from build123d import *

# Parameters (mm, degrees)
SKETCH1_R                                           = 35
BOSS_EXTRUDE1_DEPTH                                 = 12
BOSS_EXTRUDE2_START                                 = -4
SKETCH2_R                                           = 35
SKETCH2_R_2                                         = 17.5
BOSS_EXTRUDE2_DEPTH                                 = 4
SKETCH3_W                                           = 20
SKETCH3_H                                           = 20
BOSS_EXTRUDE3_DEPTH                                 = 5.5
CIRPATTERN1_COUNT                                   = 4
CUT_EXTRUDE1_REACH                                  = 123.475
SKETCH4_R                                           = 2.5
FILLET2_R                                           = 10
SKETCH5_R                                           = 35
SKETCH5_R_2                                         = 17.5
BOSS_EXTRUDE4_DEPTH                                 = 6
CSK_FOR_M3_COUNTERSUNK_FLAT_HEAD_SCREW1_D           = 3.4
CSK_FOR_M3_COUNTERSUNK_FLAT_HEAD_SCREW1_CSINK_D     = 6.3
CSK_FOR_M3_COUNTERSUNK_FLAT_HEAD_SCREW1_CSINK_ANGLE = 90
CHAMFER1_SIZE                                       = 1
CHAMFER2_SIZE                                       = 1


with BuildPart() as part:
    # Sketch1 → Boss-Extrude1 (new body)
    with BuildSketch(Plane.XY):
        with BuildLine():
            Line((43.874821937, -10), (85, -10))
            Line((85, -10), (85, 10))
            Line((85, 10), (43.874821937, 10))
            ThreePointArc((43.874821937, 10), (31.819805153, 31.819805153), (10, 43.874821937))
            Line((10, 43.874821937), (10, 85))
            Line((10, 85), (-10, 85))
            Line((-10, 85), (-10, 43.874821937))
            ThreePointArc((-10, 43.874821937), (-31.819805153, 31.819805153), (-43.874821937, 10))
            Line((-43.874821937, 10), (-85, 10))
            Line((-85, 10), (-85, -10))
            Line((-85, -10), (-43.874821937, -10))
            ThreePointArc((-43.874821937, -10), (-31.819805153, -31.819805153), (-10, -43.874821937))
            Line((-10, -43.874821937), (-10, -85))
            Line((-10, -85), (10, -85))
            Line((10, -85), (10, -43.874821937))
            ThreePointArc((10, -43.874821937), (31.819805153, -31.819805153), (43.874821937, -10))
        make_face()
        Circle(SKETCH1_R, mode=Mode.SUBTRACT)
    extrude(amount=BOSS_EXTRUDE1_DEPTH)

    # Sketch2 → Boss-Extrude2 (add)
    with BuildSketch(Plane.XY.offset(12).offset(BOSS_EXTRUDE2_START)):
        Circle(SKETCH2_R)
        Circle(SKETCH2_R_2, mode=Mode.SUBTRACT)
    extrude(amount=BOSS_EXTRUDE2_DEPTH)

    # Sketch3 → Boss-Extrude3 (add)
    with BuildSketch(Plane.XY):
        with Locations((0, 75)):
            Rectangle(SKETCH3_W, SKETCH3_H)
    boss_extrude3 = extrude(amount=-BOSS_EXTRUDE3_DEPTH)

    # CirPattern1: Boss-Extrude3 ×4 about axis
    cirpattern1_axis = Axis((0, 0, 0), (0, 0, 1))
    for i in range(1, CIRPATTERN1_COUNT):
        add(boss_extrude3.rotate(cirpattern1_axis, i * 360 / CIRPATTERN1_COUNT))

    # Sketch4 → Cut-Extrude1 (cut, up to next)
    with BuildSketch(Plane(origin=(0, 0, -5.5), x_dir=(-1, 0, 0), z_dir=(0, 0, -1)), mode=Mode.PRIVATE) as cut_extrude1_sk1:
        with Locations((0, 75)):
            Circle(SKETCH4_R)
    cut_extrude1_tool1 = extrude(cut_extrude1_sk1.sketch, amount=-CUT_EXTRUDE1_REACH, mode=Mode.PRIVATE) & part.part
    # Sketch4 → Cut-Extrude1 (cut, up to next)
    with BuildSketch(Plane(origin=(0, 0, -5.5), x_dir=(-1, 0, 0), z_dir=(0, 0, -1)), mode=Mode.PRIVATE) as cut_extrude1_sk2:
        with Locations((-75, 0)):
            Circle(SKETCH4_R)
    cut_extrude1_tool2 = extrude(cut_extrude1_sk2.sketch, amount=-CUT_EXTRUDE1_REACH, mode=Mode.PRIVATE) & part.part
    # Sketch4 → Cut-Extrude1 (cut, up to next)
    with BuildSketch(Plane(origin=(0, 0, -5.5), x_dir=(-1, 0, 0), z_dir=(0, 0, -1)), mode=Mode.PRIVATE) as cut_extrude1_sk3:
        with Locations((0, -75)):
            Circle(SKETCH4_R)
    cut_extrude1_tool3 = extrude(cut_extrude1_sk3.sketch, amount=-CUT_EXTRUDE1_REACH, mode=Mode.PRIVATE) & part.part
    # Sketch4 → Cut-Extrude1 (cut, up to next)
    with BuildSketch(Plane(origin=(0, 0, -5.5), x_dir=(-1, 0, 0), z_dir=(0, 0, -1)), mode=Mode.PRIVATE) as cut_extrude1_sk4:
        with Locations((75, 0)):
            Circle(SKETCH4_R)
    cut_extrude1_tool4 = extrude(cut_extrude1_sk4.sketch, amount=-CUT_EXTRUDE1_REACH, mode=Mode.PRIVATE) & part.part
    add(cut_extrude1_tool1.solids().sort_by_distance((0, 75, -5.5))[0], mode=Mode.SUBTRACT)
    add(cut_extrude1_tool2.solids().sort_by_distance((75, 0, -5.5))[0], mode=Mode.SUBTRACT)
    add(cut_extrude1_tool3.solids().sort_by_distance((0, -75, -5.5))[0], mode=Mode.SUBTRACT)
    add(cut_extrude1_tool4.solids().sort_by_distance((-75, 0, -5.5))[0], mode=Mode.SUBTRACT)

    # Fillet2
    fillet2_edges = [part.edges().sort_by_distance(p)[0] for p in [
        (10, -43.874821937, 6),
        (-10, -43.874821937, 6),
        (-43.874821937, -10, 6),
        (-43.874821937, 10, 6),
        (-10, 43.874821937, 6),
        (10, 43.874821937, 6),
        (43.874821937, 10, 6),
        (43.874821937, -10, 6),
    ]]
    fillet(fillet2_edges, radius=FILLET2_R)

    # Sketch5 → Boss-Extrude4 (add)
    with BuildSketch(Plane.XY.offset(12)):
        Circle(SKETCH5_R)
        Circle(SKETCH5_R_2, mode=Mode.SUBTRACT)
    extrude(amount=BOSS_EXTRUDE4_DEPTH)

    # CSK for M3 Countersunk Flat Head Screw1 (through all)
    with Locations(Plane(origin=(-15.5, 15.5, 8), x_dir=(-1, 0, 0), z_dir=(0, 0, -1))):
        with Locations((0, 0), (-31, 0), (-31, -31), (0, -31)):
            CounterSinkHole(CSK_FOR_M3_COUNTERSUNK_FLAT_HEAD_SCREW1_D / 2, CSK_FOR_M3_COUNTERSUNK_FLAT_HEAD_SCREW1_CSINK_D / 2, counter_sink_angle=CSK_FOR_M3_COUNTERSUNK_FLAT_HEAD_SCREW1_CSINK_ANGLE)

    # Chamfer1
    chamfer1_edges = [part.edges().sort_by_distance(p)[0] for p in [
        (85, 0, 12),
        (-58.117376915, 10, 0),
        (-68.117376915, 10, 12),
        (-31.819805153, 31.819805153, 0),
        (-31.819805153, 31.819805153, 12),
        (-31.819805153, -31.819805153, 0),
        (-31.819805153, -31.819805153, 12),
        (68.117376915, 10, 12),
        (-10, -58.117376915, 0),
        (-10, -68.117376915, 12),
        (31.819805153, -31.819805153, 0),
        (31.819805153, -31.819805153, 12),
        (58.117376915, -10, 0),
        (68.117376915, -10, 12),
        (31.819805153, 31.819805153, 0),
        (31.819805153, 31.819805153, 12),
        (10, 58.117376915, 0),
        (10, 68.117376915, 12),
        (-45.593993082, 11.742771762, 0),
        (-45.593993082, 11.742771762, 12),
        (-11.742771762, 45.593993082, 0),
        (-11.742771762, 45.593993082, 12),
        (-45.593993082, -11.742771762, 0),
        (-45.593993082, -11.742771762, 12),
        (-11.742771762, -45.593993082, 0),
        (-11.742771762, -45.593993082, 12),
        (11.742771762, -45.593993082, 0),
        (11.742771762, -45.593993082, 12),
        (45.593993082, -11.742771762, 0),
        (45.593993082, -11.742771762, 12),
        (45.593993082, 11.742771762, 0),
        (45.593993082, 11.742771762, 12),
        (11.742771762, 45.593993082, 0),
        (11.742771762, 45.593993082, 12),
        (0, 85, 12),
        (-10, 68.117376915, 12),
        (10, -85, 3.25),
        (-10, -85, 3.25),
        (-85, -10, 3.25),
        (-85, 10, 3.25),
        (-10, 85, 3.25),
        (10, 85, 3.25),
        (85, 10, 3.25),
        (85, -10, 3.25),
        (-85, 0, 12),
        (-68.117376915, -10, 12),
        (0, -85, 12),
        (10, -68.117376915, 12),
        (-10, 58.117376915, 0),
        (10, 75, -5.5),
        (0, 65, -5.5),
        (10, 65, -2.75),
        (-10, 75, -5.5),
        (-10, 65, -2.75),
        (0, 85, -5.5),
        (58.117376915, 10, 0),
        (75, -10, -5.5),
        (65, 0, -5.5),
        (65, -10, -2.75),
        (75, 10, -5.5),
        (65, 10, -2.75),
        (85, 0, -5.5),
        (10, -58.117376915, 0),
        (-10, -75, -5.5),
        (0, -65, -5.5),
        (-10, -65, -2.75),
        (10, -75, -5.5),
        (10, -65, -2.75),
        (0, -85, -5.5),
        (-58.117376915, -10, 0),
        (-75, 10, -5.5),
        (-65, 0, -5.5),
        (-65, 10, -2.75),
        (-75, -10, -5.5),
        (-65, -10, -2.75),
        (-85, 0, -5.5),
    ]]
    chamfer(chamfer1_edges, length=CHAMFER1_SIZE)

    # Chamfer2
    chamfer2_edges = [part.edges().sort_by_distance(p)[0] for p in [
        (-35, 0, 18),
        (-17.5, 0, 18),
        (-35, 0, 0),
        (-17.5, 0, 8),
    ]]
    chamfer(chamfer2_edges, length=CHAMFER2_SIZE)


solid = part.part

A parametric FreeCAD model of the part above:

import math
import FreeCAD as App
import Part
import Sketcher
from FreeCAD import Vector


def edges_at(feature, points):
    """Names of the edges that pass closest to the given points."""
    edges = feature.Shape.Edges
    near = lambda p: min(range(len(edges)), key=lambda i: edges[i].distToShape(Part.Vertex(*p))[0])
    return sorted({f"Edge{near(p) + 1}" for p in points})


def add_polygon(sketch, points):
    """Adds a closed chain of lines whose ends are joined by coincident constraints."""
    first, n = sketch.GeometryCount, len(points)
    for a, b in zip(points, points[1:] + points[:1]):
        sketch.addGeometry(Part.LineSegment(App.Vector(*a, 0), App.Vector(*b, 0)), False)
    for i in range(n):
        sketch.addConstraint(Sketcher.Constraint("Coincident", first + i, 2, first + (i + 1) % n, 1))

doc = App.newDocument("Part")
body = doc.addObject("PartDesign::Body", "Body")

# Sketch on XY plane
sketch1 = body.newObject("Sketcher::SketchObject", "Sketch")
sketch1.AttachmentSupport = (doc.getObject("XY_Plane"), [""])
sketch1.MapMode = "FlatFace"
sketch1.addGeometry(Part.LineSegment(Vector(44, -10, 0), Vector(85, -10, 0)), False)
sketch1.addGeometry(Part.LineSegment(Vector(85, -10, 0), Vector(85, 10, 0)), False)
sketch1.addGeometry(Part.LineSegment(Vector(85, 10, 0), Vector(44, 10, 0)), False)
sketch1.addGeometry(Part.ArcOfCircle(Part.Circle(Vector(0, 0, 0), Vector(0, 0, 1), 45), math.radians(13), math.radians(77)), False)
sketch1.addGeometry(Part.LineSegment(Vector(10, 44, 0), Vector(10, 85, 0)), False)
sketch1.addGeometry(Part.LineSegment(Vector(10, 85, 0), Vector(-10, 85, 0)), False)
sketch1.addGeometry(Part.LineSegment(Vector(-10, 85, 0), Vector(-10, 44, 0)), False)
sketch1.addGeometry(Part.ArcOfCircle(Part.Circle(Vector(0, 0, 0), Vector(0, 0, 1), 45), math.radians(103), math.radians(167)), False)
sketch1.addGeometry(Part.LineSegment(Vector(-44, 10, 0), Vector(-85, 10, 0)), False)
sketch1.addGeometry(Part.LineSegment(Vector(-85, 10, 0), Vector(-85, -10, 0)), False)
sketch1.addGeometry(Part.LineSegment(Vector(-85, -10, 0), Vector(-44, -10, 0)), False)
sketch1.addGeometry(Part.ArcOfCircle(Part.Circle(Vector(0, 0, 0), Vector(0, 0, 1), 45), math.radians(-167), math.radians(-103)), False)
sketch1.addGeometry(Part.LineSegment(Vector(-10, -44, 0), Vector(-10, -85, 0)), False)
sketch1.addGeometry(Part.LineSegment(Vector(-10, -85, 0), Vector(10, -85, 0)), False)
sketch1.addGeometry(Part.LineSegment(Vector(10, -85, 0), Vector(10, -44, 0)), False)
sketch1.addGeometry(Part.ArcOfCircle(Part.Circle(Vector(0, 0, 0), Vector(0, 0, 1), 45), math.radians(-77), math.radians(-13)), False)
sketch1.addGeometry(Part.Circle(Vector(0, 0, 0), Vector(0, 0, 1), 35), False)
sketch1.addConstraint(Sketcher.Constraint("Coincident", 0, 2, 1, 1))
sketch1.addConstraint(Sketcher.Constraint("Coincident", 1, 2, 2, 1))
sketch1.addConstraint(Sketcher.Constraint("Coincident", 2, 2, 3, 1))
sketch1.addConstraint(Sketcher.Constraint("Coincident", 3, 2, 4, 1))
sketch1.addConstraint(Sketcher.Constraint("Coincident", 4, 2, 5, 1))
sketch1.addConstraint(Sketcher.Constraint("Coincident", 5, 2, 6, 1))
sketch1.addConstraint(Sketcher.Constraint("Coincident", 6, 2, 7, 1))
sketch1.addConstraint(Sketcher.Constraint("Coincident", 7, 2, 8, 1))
sketch1.addConstraint(Sketcher.Constraint("Coincident", 8, 2, 9, 1))
sketch1.addConstraint(Sketcher.Constraint("Coincident", 9, 2, 10, 1))
sketch1.addConstraint(Sketcher.Constraint("Coincident", 10, 2, 11, 1))
sketch1.addConstraint(Sketcher.Constraint("Coincident", 11, 2, 12, 1))
sketch1.addConstraint(Sketcher.Constraint("Coincident", 12, 2, 13, 1))
sketch1.addConstraint(Sketcher.Constraint("Coincident", 13, 2, 14, 1))
sketch1.addConstraint(Sketcher.Constraint("Coincident", 14, 2, 15, 1))
sketch1.addConstraint(Sketcher.Constraint("Coincident", 15, 2, 0, 1))
sketch1.addConstraint(Sketcher.Constraint("Horizontal", 0))
sketch1.addConstraint(Sketcher.Constraint("Vertical", 1))
sketch1.addConstraint(Sketcher.Constraint("Horizontal", 2))
sketch1.addConstraint(Sketcher.Constraint("Vertical", 4))
sketch1.addConstraint(Sketcher.Constraint("Horizontal", 5))
sketch1.addConstraint(Sketcher.Constraint("Vertical", 6))
sketch1.addConstraint(Sketcher.Constraint("Horizontal", 8))
sketch1.addConstraint(Sketcher.Constraint("Vertical", 9))
sketch1.addConstraint(Sketcher.Constraint("Horizontal", 10))
sketch1.addConstraint(Sketcher.Constraint("Vertical", 12))
sketch1.addConstraint(Sketcher.Constraint("Horizontal", 13))
sketch1.addConstraint(Sketcher.Constraint("Vertical", 14))
sketch1.addConstraint(Sketcher.Constraint("Coincident", 3, 3, -1, 1))
sketch1.addConstraint(Sketcher.Constraint("Coincident", 7, 3, -1, 1))
sketch1.addConstraint(Sketcher.Constraint("Coincident", 11, 3, -1, 1))
sketch1.addConstraint(Sketcher.Constraint("Coincident", 15, 3, -1, 1))
sketch1.addConstraint(Sketcher.Constraint("Coincident", 16, 3, -1, 1))
sketch1.addConstraint(Sketcher.Constraint("Equal", 3, 7))
sketch1.addConstraint(Sketcher.Constraint("Equal", 7, 11))
sketch1.addConstraint(Sketcher.Constraint("Equal", 11, 15))
sketch1.addConstraint(Sketcher.Constraint("Symmetric", 0, 2, 8, 2, -1, 1))
sketch1.addConstraint(Sketcher.Constraint("Symmetric", 4, 2, 12, 2, -1, 1))
sketch1.addConstraint(Sketcher.Constraint("Horizontal", 3, 2, 6, 2))
sketch1.addConstraint(Sketcher.Constraint("Horizontal", 2, 2, 7, 2))
sketch1.addConstraint(Sketcher.Constraint("Horizontal", 0, 2, 9, 2))
sketch1.addConstraint(Sketcher.Constraint("Horizontal", 11, 2, 14, 2))
sketch1.addConstraint(Sketcher.Constraint("Equal", 13, 1))
sketch1.addConstraint(Sketcher.Constraint("Equal", 10, 4))
sketch1.addConstraint(Sketcher.Constraint("Diameter", 16, 70.0))
sketch1.addConstraint(Sketcher.Constraint("Radius", 3, 45.0))
sketch1.addConstraint(Sketcher.Constraint("DistanceX", 5, 2, 5, 1, 20.0))
sketch1.addConstraint(Sketcher.Constraint("DistanceX", -1, 1, 0, 2, 85.0))
pad1 = body.newObject("PartDesign::Pad", "Pad")
pad1.Profile = sketch1
pad1.Length = 12

# Sketch on XY plane
sketch2 = body.newObject("Sketcher::SketchObject", "Sketch001")
sketch2.AttachmentSupport = (doc.getObject("XY_Plane"), [""])
sketch2.MapMode = "FlatFace"
sketch2.AttachmentOffset = App.Placement(Vector(0, 0, 8), App.Rotation())
sketch2.addGeometry(Part.Circle(Vector(0, 0, 0), Vector(0, 0, 1), 35), False)
sketch2.addGeometry(Part.Circle(Vector(0, 0, 0), Vector(0, 0, 1), 18), False)
sketch2.addConstraint(Sketcher.Constraint("Coincident", 0, 3, -1, 1))
sketch2.addConstraint(Sketcher.Constraint("Coincident", 1, 3, -1, 1))
sketch2.addConstraint(Sketcher.Constraint("Diameter", 0, 70.0))
sketch2.addConstraint(Sketcher.Constraint("Diameter", 1, 35.0))
pad2 = body.newObject("PartDesign::Pad", "Pad001")
pad2.Profile = sketch2
pad2.Length = 4

# Sketch on XY plane
sketch3 = body.newObject("Sketcher::SketchObject", "Sketch002")
sketch3.AttachmentSupport = (doc.getObject("XY_Plane"), [""])
sketch3.MapMode = "FlatFace"
add_polygon(sketch3, [(-10, 85), (-10, 65), (10, 65), (10, 85)])  # lines 0-3
sketch3.addConstraint(Sketcher.Constraint("Vertical", 0))
sketch3.addConstraint(Sketcher.Constraint("Horizontal", 1))
sketch3.addConstraint(Sketcher.Constraint("Vertical", 2))
sketch3.addConstraint(Sketcher.Constraint("Horizontal", 3))
sketch3.addConstraint(Sketcher.Constraint("Equal", 3, 0))
sketch3.addConstraint(Sketcher.Constraint("DistanceX", 1, 1, 1, 2, 20.0))
sketch3.addConstraint(Sketcher.Constraint("DistanceX", 0, 2, -1, 1, 10.0))
sketch3.addConstraint(Sketcher.Constraint("DistanceY", -1, 1, 0, 2, 65.0))
pad3 = body.newObject("PartDesign::Pad", "Pad002")
pad3.Profile = sketch3
pad3.Length = 5.5
pad3.Reversed = True
doc.recompute()

polarpattern = body.newObject("PartDesign::PolarPattern", "PolarPattern")
polarpattern.Originals = [pad3]
polarpattern.Axis = (doc.getObject("Z_Axis"), [""])
polarpattern.Angle = 360
polarpattern.Occurrences = 4
body.Tip = polarpattern

# Sketch on XY plane
sketch4 = body.newObject("Sketcher::SketchObject", "Sketch003")
sketch4.AttachmentSupport = (doc.getObject("XY_Plane"), [""])
sketch4.MapMode = "FlatFace"
sketch4.AttachmentOffset = App.Placement(Vector(0, 0, -5.5), App.Rotation())
sketch4.addGeometry(Part.Circle(Vector(0, 75, 0), Vector(0, 0, 1), 2.5), False)
sketch4.addConstraint(Sketcher.Constraint("PointOnObject", 0, 3, -2))
sketch4.addConstraint(Sketcher.Constraint("Diameter", 0, 5.0))
sketch4.addConstraint(Sketcher.Constraint("DistanceY", -1, 1, 0, 3, 75.0))
pocket1 = body.newObject("PartDesign::Pocket", "Pocket")
pocket1.Profile = sketch4
pocket1.Type = "UpToFirst"
pocket1.Reversed = True

# Sketch on XY plane
sketch5 = body.newObject("Sketcher::SketchObject", "Sketch004")
sketch5.AttachmentSupport = (doc.getObject("XY_Plane"), [""])
sketch5.MapMode = "FlatFace"
sketch5.AttachmentOffset = App.Placement(Vector(0, 0, -5.5), App.Rotation())
sketch5.addGeometry(Part.Circle(Vector(75, 0, 0), Vector(0, 0, 1), 2.5), False)
sketch5.addConstraint(Sketcher.Constraint("PointOnObject", 0, 3, -1))
sketch5.addConstraint(Sketcher.Constraint("Diameter", 0, 5.0))
sketch5.addConstraint(Sketcher.Constraint("DistanceX", -1, 1, 0, 3, 75.0))
pocket2 = body.newObject("PartDesign::Pocket", "Pocket001")
pocket2.Profile = sketch5
pocket2.Type = "UpToFirst"
pocket2.Reversed = True

# Sketch on XY plane
sketch6 = body.newObject("Sketcher::SketchObject", "Sketch005")
sketch6.AttachmentSupport = (doc.getObject("XY_Plane"), [""])
sketch6.MapMode = "FlatFace"
sketch6.AttachmentOffset = App.Placement(Vector(0, 0, -5.5), App.Rotation())
sketch6.addGeometry(Part.Circle(Vector(0, -75, 0), Vector(0, 0, 1), 2.5), False)
sketch6.addConstraint(Sketcher.Constraint("PointOnObject", 0, 3, -2))
sketch6.addConstraint(Sketcher.Constraint("Diameter", 0, 5.0))
sketch6.addConstraint(Sketcher.Constraint("DistanceY", 0, 3, -1, 1, 75.0))
pocket3 = body.newObject("PartDesign::Pocket", "Pocket002")
pocket3.Profile = sketch6
pocket3.Type = "UpToFirst"
pocket3.Reversed = True

# Sketch on XY plane
sketch7 = body.newObject("Sketcher::SketchObject", "Sketch006")
sketch7.AttachmentSupport = (doc.getObject("XY_Plane"), [""])
sketch7.MapMode = "FlatFace"
sketch7.AttachmentOffset = App.Placement(Vector(0, 0, -5.5), App.Rotation())
sketch7.addGeometry(Part.Circle(Vector(-75, 0, 0), Vector(0, 0, 1), 2.5), False)
sketch7.addConstraint(Sketcher.Constraint("PointOnObject", 0, 3, -1))
sketch7.addConstraint(Sketcher.Constraint("Diameter", 0, 5.0))
sketch7.addConstraint(Sketcher.Constraint("DistanceX", 0, 3, -1, 1, 75.0))
pocket4 = body.newObject("PartDesign::Pocket", "Pocket003")
pocket4.Profile = sketch7
pocket4.Type = "UpToFirst"
pocket4.Reversed = True
doc.recompute()

fillet = body.newObject("PartDesign::Fillet", "Fillet")
fillet.Base = (pocket4, edges_at(pocket4, [
    (10, -43.875, 6),
    (-10, -43.875, 6),
    (-43.875, -10, 6),
    (-43.875, 10, 6),
    (-10, 43.875, 6),
    (10, 43.875, 6),
    (43.875, 10, 6),
    (43.875, -10, 6),
]))
fillet.Radius = 10

# Sketch on XY plane
sketch8 = body.newObject("Sketcher::SketchObject", "Sketch007")
sketch8.AttachmentSupport = (doc.getObject("XY_Plane"), [""])
sketch8.MapMode = "FlatFace"
sketch8.AttachmentOffset = App.Placement(Vector(0, 0, 12), App.Rotation())
sketch8.addGeometry(Part.Circle(Vector(0, 0, 0), Vector(0, 0, 1), 35), False)
sketch8.addGeometry(Part.Circle(Vector(0, 0, 0), Vector(0, 0, 1), 18), False)
sketch8.addConstraint(Sketcher.Constraint("Coincident", 0, 3, -1, 1))
sketch8.addConstraint(Sketcher.Constraint("Coincident", 1, 3, -1, 1))
sketch8.addConstraint(Sketcher.Constraint("Diameter", 0, 70.0))
sketch8.addConstraint(Sketcher.Constraint("Diameter", 1, 35.0))
pad4 = body.newObject("PartDesign::Pad", "Pad003")
pad4.Profile = sketch8
pad4.Length = 6

# Sketch on XY plane
sketch9 = body.newObject("Sketcher::SketchObject", "Sketch008")
sketch9.AttachmentSupport = (doc.getObject("XY_Plane"), [""])
sketch9.MapMode = "FlatFace"
sketch9.AttachmentOffset = App.Placement(Vector(0, 0, 8), App.Rotation())
sketch9.addGeometry(Part.Circle(Vector(-15.5, 15.5, 0), Vector(0, 0, 1), 1.7), False)
sketch9.addGeometry(Part.Circle(Vector(15.5, 15.5, 0), Vector(0, 0, 1), 1.7), False)
sketch9.addGeometry(Part.Circle(Vector(15.5, -15.5, 0), Vector(0, 0, 1), 1.7), False)
sketch9.addGeometry(Part.Circle(Vector(-15.5, -15.5, 0), Vector(0, 0, 1), 1.7), False)
sketch9.addConstraint(Sketcher.Constraint("Equal", 0, 1))
sketch9.addConstraint(Sketcher.Constraint("Equal", 1, 2))
sketch9.addConstraint(Sketcher.Constraint("Equal", 2, 3))
sketch9.addConstraint(Sketcher.Constraint("Symmetric", 0, 3, 2, 3, -1, 1))
sketch9.addConstraint(Sketcher.Constraint("Symmetric", 1, 3, 3, 3, -1, 1))
sketch9.addConstraint(Sketcher.Constraint("Symmetric", 0, 3, 1, 3, -2))
sketch9.addConstraint(Sketcher.Constraint("Diameter", 0, 3.4))
sketch9.addConstraint(Sketcher.Constraint("DistanceX", 0, 3, 1, 3, 31.0))
sketch9.addConstraint(Sketcher.Constraint("DistanceY", 2, 3, 1, 3, 31.0))
doc.recompute()
hole = body.newObject("PartDesign::Hole", "Hole")
hole.Profile = sketch9
hole.ThreadType = "None"
hole.Diameter = 3.4
hole.DepthType = "ThroughAll"
hole.HoleCutType = "Countersink"
hole.HoleCutDiameter = 6.3
hole.HoleCutCountersinkAngle = 90
hole.Reversed = True
doc.recompute()

chamfer = body.newObject("PartDesign::Chamfer", "Chamfer")
chamfer.Base = (hole, edges_at(hole, [
    (85, 0, 12),
    (-58.117, 10, 0),
    (-68.117, 10, 12),
    (-31.82, 31.82, 0),
    (-31.82, 31.82, 12),
    (-31.82, -31.82, 0),
    (-31.82, -31.82, 12),
    (68.117, 10, 12),
    (-10, -58.117, 0),
    (-10, -68.117, 12),
    (31.82, -31.82, 0),
    (31.82, -31.82, 12),
    (58.117, -10, 0),
    (68.117, -10, 12),
    (31.82, 31.82, 0),
    (31.82, 31.82, 12),
    (10, 58.117, 0),
    (10, 68.117, 12),
    (-45.594, 11.743, 0),
    (-45.594, 11.743, 12),
    (-11.743, 45.594, 0),
    (-11.743, 45.594, 12),
    (-45.594, -11.743, 0),
    (-45.594, -11.743, 12),
    (-11.743, -45.594, 0),
    (-11.743, -45.594, 12),
    (11.743, -45.594, 0),
    (11.743, -45.594, 12),
    (45.594, -11.743, 0),
    (45.594, -11.743, 12),
    (45.594, 11.743, 0),
    (45.594, 11.743, 12),
    (11.743, 45.594, 0),
    (11.743, 45.594, 12),
    (0, 85, 12),
    (-10, 68.117, 12),
    (10, -85, 3.25),
    (-10, -85, 3.25),
    (-85, -10, 3.25),
    (-85, 10, 3.25),
    (-10, 85, 3.25),
    (10, 85, 3.25),
    (85, 10, 3.25),
    (85, -10, 3.25),
    (-85, 0, 12),
    (-68.117, -10, 12),
    (0, -85, 12),
    (10, -68.117, 12),
    (-10, 58.117, 0),
    (10, 75, -5.5),
    (0, 65, -5.5),
    (10, 65, -2.75),
    (-10, 75, -5.5),
    (-10, 65, -2.75),
    (0, 85, -5.5),
    (58.117, 10, 0),
    (75, -10, -5.5),
    (65, 0, -5.5),
    (65, -10, -2.75),
    (75, 10, -5.5),
    (65, 10, -2.75),
    (85, 0, -5.5),
    (10, -58.117, 0),
    (-10, -75, -5.5),
    (0, -65, -5.5),
    (-10, -65, -2.75),
    (10, -75, -5.5),
    (10, -65, -2.75),
    (0, -85, -5.5),
    (-58.117, -10, 0),
    (-75, 10, -5.5),
    (-65, 0, -5.5),
    (-65, 10, -2.75),
    (-75, -10, -5.5),
    (-65, -10, -2.75),
    (-85, 0, -5.5),
]))
chamfer.Size = 1
doc.recompute()

chamfer2 = body.newObject("PartDesign::Chamfer", "Chamfer001")
chamfer2.Base = (chamfer, edges_at(chamfer, [
    (-35, 0, 18),
    (-17.5, 0, 18),
    (-35, 0, 0),
    (-17.5, 0, 8),
]))
chamfer2.Size = 1

doc.recompute()
